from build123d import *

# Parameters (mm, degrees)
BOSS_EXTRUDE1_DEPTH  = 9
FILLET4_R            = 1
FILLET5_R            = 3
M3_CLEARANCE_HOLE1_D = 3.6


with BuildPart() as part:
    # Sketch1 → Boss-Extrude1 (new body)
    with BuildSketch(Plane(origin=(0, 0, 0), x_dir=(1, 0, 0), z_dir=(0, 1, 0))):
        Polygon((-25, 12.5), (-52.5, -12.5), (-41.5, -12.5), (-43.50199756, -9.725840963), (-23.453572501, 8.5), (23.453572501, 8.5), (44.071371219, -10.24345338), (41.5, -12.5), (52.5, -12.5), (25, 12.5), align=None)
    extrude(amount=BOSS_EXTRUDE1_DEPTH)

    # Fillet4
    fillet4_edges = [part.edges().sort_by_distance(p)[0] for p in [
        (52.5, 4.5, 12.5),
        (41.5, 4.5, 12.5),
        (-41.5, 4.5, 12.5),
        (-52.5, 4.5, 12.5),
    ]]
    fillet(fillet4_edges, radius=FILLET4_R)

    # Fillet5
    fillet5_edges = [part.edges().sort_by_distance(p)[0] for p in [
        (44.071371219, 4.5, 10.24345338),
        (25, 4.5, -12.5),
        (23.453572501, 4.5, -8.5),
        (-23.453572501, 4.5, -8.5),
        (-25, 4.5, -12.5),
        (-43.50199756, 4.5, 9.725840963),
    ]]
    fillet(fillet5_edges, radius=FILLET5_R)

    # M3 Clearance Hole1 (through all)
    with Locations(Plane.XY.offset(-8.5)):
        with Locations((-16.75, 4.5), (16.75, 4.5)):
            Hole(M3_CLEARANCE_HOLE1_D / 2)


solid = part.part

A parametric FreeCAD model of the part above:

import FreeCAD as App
import Part
import Sketcher


def edges_at(feature, points):
    """Names of the edges that pass closest to the given points."""
    edges = feature.Shape.Edges
    near = lambda p: min(range(len(edges)), key=lambda i: edges[i].distToShape(Part.Vertex(*p))[0])
    return sorted({f"Edge{near(p) + 1}" for p in points})

doc = App.newDocument("Part")
body = doc.addObject("PartDesign::Body", "Body")

sketch1 = doc.addObject("Sketcher::SketchObject", "Sketch")
body.addObject(sketch1)
sketch1.AttachmentSupport = (doc.XZ_Plane, [""])
sketch1.MapMode = "FlatFace"
sketch1.addGeometry([
    Part.LineSegment(App.Vector(-25, -12.5, 0), App.Vector(-52.5, 12.5, 0)),
    Part.LineSegment(App.Vector(-52.5, 12.5, 0), App.Vector(-41.5, 12.5, 0)),
    Part.LineSegment(App.Vector(-41.5, 12.5, 0), App.Vector(-43.5, 9.7, 0)),
    Part.LineSegment(App.Vector(-43.5, 9.7, 0), App.Vector(-23.5, -8.5, 0)),
    Part.LineSegment(App.Vector(-23.5, -8.5, 0), App.Vector(23.5, -8.5, 0)),
    Part.LineSegment(App.Vector(23.5, -8.5, 0), App.Vector(44.1, 10.2, 0)),
    Part.LineSegment(App.Vector(44.1, 10.2, 0), App.Vector(41.5, 12.5, 0)),
    Part.LineSegment(App.Vector(41.5, 12.5, 0), App.Vector(52.5, 12.5, 0)),
    Part.LineSegment(App.Vector(52.5, 12.5, 0), App.Vector(25, -12.5, 0)),
    Part.LineSegment(App.Vector(25, -12.5, 0), App.Vector(-25, -12.5, 0)),
], False)
sketch1.addConstraint([
    Sketcher.Constraint("Coincident", 0, 2, 1, 1),
    Sketcher.Constraint("Coincident", 1, 2, 2, 1),
    Sketcher.Constraint("Coincident", 2, 2, 3, 1),
    Sketcher.Constraint("Coincident", 3, 2, 4, 1),
    Sketcher.Constraint("Coincident", 4, 2, 5, 1),
    Sketcher.Constraint("Coincident", 5, 2, 6, 1),
    Sketcher.Constraint("Coincident", 6, 2, 7, 1),
    Sketcher.Constraint("Coincident", 7, 2, 8, 1),
    Sketcher.Constraint("Coincident", 8, 2, 9, 1),
    Sketcher.Constraint("Coincident", 9, 2, 0, 1),
    Sketcher.Constraint("Horizontal", 1),
    Sketcher.Constraint("Horizontal", 4),
    Sketcher.Constraint("Horizontal", 7),
    Sketcher.Constraint("Horizontal", 9),
    Sketcher.Constraint("Symmetric", 1, 2, 6, 2, -2),
    Sketcher.Constraint("Parallel", 0, 3),
    Sketcher.Constraint("Parallel", 5, 8),
    Sketcher.Constraint("Equal", 1, 7),
    Sketcher.Constraint("Equal", 2, 6),
    Sketcher.Constraint("Equal", 0, 8),
    Sketcher.Constraint("DistanceX", 1, 1, 1, 2, 11.0),
    Sketcher.Constraint("DistanceX", 9, 2, 9, 1, 50.0),
    Sketcher.Constraint("DistanceY", 3, 2, 1, 2, 21.0),
    Sketcher.Constraint("DistanceX", 1, 2, 6, 2, 83.0),
    Sketcher.Constraint("DistanceY", 8, 2, 4, 2, 4.0),
    Sketcher.Constraint("DistanceY", -1, 1, 0, 2, 12.5),
    Sketcher.Constraint("DistanceX", 4, 2, 5, 2, 20.617799),
    Sketcher.Constraint("Distance", 3, 27.09466),
    Sketcher.Constraint("DistanceX", 4, 1, 4, 2, 46.907145),
])
pad1 = doc.addObject("PartDesign::Pad", "Pad")
body.addObject(pad1)
pad1.Profile = sketch1
pad1.Length = 9
pad1.Reversed = True
doc.recompute()

fillet = doc.addObject("PartDesign::Fillet", "Fillet")
body.addObject(fillet)
fillet.Base = (pad1, edges_at(pad1, [
    (52.5, 4.5, 12.5),
    (41.5, 4.5, 12.5),
    (-41.5, 4.5, 12.5),
    (-52.5, 4.5, 12.5),
]))
fillet.Radius = 1
doc.recompute()

fillet2 = doc.addObject("PartDesign::Fillet", "Fillet001")
body.addObject(fillet2)
fillet2.Base = (fillet, edges_at(fillet, [
    (44.071, 4.5, 10.243),
    (25, 4.5, -12.5),
    (23.454, 4.5, -8.5),
    (-23.454, 4.5, -8.5),
    (-25, 4.5, -12.5),
    (-43.502, 4.5, 9.726),
]))
fillet2.Radius = 3

sketch2 = doc.addObject("Sketcher::SketchObject", "Sketch001")
body.addObject(sketch2)
sketch2.AttachmentSupport = (doc.XY_Plane, [""])
sketch2.MapMode = "FlatFace"
sketch2.AttachmentOffset = App.Placement(App.Vector(0, 0, -8.5), App.Rotation())
sketch2.addGeometry([
    Part.Circle(App.Vector(-16.8, 4.5, 0), App.Vector(0, 0, 1), 1.8),
    Part.Circle(App.Vector(16.8, 4.5, 0), App.Vector(0, 0, 1), 1.8),
], False)
sketch2.addConstraint([
    Sketcher.Constraint("Equal", 0, 1),
    Sketcher.Constraint("Symmetric", 0, 3, 1, 3, -2),
    Sketcher.Constraint("Diameter", 0, 3.6),
    Sketcher.Constraint("DistanceY", -1, 1, 0, 3, 4.5),
    Sketcher.Constraint("DistanceX", 0, 3, 1, 3, 33.5),
])
doc.recompute()
hole = doc.addObject("PartDesign::Hole", "Hole")
body.addObject(hole)
hole.Profile = sketch2
hole.ThreadType = "None"
hole.Diameter = 3.6
hole.DepthType = "ThroughAll"

doc.recompute()
